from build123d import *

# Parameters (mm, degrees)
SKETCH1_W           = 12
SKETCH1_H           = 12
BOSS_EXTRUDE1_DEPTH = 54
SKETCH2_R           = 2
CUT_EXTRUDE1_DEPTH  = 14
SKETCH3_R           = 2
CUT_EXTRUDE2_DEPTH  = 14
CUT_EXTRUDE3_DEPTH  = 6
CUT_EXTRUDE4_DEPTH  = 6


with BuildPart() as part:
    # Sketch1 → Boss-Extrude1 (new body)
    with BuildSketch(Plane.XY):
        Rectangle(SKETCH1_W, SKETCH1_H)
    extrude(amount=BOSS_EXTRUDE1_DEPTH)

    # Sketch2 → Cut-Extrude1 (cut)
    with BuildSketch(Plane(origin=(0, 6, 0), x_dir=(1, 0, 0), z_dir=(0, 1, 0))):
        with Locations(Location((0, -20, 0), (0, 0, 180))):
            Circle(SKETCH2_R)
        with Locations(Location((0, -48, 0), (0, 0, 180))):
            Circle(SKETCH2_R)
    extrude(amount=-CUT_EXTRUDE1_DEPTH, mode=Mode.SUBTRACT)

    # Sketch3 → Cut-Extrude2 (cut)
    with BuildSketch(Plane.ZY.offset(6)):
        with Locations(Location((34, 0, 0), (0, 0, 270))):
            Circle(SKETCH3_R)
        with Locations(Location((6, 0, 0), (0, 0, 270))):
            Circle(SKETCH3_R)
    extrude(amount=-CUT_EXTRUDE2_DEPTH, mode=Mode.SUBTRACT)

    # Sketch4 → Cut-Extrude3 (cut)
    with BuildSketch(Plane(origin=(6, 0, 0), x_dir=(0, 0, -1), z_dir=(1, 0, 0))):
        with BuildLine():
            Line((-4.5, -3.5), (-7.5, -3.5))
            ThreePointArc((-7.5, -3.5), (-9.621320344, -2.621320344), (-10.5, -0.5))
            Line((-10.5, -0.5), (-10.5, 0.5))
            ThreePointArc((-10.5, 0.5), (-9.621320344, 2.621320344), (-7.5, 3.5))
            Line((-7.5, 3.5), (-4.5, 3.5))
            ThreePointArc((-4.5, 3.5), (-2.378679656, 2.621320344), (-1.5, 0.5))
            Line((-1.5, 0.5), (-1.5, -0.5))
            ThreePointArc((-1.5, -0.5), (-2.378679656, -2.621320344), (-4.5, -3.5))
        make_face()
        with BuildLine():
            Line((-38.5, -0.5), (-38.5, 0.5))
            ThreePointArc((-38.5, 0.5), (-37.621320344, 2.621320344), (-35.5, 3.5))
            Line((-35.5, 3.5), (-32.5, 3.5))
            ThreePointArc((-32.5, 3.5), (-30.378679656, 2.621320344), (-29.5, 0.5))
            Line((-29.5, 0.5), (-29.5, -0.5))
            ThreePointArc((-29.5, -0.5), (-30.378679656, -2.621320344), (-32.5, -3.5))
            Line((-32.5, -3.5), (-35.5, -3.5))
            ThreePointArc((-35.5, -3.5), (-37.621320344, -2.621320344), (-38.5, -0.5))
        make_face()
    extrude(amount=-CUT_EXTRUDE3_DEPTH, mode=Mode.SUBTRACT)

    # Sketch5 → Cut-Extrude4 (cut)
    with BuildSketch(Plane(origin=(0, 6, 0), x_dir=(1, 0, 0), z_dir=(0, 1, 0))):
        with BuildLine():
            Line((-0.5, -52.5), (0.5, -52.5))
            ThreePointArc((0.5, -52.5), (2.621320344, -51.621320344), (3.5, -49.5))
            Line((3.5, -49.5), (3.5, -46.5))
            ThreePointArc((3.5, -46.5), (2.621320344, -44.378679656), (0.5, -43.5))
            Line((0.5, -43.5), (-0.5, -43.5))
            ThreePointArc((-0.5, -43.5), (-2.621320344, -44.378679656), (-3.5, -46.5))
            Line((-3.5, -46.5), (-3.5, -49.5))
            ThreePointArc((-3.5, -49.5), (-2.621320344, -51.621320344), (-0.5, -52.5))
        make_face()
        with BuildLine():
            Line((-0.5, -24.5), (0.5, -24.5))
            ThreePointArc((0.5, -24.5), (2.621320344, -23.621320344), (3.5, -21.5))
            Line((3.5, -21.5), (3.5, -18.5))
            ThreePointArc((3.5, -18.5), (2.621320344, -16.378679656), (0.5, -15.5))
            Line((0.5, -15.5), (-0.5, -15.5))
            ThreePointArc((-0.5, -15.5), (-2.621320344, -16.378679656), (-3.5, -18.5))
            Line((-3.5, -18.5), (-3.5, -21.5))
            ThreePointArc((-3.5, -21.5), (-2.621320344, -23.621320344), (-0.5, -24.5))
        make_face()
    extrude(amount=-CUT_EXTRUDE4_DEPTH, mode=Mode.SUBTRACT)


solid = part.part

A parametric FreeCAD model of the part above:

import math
import FreeCAD as App
import Part
import Sketcher

V = App.Vector

doc = App.newDocument("Part")
body = doc.addObject("PartDesign::Body", "Body")

# Sketch on XY plane
sketch1 = doc.addObject("Sketcher::SketchObject", "Sketch")
body.addObject(sketch1)
sketch1.AttachmentSupport = (doc.XY_Plane, [""])
sketch1.MapMode = "FlatFace"
sketch1.addGeometry([
    Part.LineSegment(V(-6, 6, 0), V(-6, -6, 0)),
    Part.LineSegment(V(-6, -6, 0), V(6, -6, 0)),
    Part.LineSegment(V(6, -6, 0), V(6, 6, 0)),
    Part.LineSegment(V(6, 6, 0), V(-6, 6, 0)),
], False)
sketch1.addConstraint([
    Sketcher.Constraint("Coincident", 0, 2, 1, 1),
    Sketcher.Constraint("Coincident", 1, 2, 2, 1),
    Sketcher.Constraint("Coincident", 2, 2, 3, 1),
    Sketcher.Constraint("Coincident", 3, 2, 0, 1),
    Sketcher.Constraint("Vertical", 0),
    Sketcher.Constraint("Horizontal", 1),
    Sketcher.Constraint("Vertical", 2),
    Sketcher.Constraint("Horizontal", 3),
    Sketcher.Constraint("Symmetric", 0, 2, 2, 2, -1, 1),
    Sketcher.Constraint("Equal", 3, 0),
    Sketcher.Constraint("DistanceX", 1, 1, 1, 2, 12.0),
])
pad1 = doc.addObject("PartDesign::Pad", "Pad")
body.addObject(pad1)
pad1.Profile = sketch1
pad1.Length = 54

# Sketch on XZ plane
sketch2 = doc.addObject("Sketcher::SketchObject", "Sketch001")
body.addObject(sketch2)
sketch2.AttachmentSupport = (doc.XZ_Plane, [""])
sketch2.MapMode = "FlatFace"
sketch2.AttachmentOffset = App.Placement(V(0, 0, -6), App.Rotation())
sketch2.addGeometry([
    Part.Circle(V(0, 20, 0), V(0, 0, 1), 2),
    Part.Circle(V(0, 48, 0), V(0, 0, 1), 2),
], False)
sketch2.addConstraint([
    Sketcher.Constraint("Equal", 0, 1),
    Sketcher.Constraint("PointOnObject", 0, 3, -2),
    Sketcher.Constraint("PointOnObject", 1, 3, -2),
    Sketcher.Constraint("Diameter", 0, 4.0),
    Sketcher.Constraint("DistanceY", -1, 1, 0, 3, 20.0),
    Sketcher.Constraint("DistanceY", -1, 1, 1, 3, 48.0),
])
pocket1 = doc.addObject("PartDesign::Pocket", "Pocket")
body.addObject(pocket1)
pocket1.Profile = sketch2
pocket1.Length = 14
pocket1.Reversed = True

# Sketch on YZ plane
sketch3 = doc.addObject("Sketcher::SketchObject", "Sketch002")
body.addObject(sketch3)
sketch3.AttachmentSupport = (doc.YZ_Plane, [""])
sketch3.MapMode = "FlatFace"
sketch3.AttachmentOffset = App.Placement(V(0, 0, -6), App.Rotation())
sketch3.addGeometry([
    Part.Circle(V(0, 34, 0), V(0, 0, 1), 2),
    Part.Circle(V(0, 6, 0), V(0, 0, 1), 2),
], False)
sketch3.addConstraint([
    Sketcher.Constraint("Equal", 0, 1),
    Sketcher.Constraint("PointOnObject", 0, 3, -2),
    Sketcher.Constraint("PointOnObject", 1, 3, -2),
    Sketcher.Constraint("Diameter", 0, 4.0),
    Sketcher.Constraint("DistanceY", -1, 1, 0, 3, 34.0),
    Sketcher.Constraint("DistanceY", -1, 1, 1, 3, 6.0),
])
pocket2 = doc.addObject("PartDesign::Pocket", "Pocket001")
body.addObject(pocket2)
pocket2.Profile = sketch3
pocket2.Length = 14
pocket2.Reversed = True

# Sketch on YZ plane
sketch4 = doc.addObject("Sketcher::SketchObject", "Sketch003")
body.addObject(sketch4)
sketch4.AttachmentSupport = (doc.YZ_Plane, [""])
sketch4.MapMode = "FlatFace"
sketch4.AttachmentOffset = App.Placement(V(0, 0, 6), App.Rotation())
sketch4.addGeometry([
    Part.LineSegment(V(-3.5, 7.5, 0), V(-3.5, 4.5, 0)),  # 0
    Part.ArcOfCircle(Part.Circle(V(-0.5, 4.5, 0), V(0, 0, 1), 3), math.radians(180), math.radians(270)),  # 1
    Part.LineSegment(V(-0.5, 1.5, 0), V(0.5, 1.5, 0)),  # 2
    Part.ArcOfCircle(Part.Circle(V(0.5, 4.5, 0), V(0, 0, 1), 3), math.radians(-90), math.radians(0)),  # 3
    Part.LineSegment(V(3.5, 4.5, 0), V(3.5, 7.5, 0)),  # 4
    Part.ArcOfCircle(Part.Circle(V(0.5, 7.5, 0), V(0, 0, 1), 3), math.radians(0), math.radians(90)),  # 5
    Part.LineSegment(V(0.5, 10.5, 0), V(-0.5, 10.5, 0)),  # 6
    Part.ArcOfCircle(Part.Circle(V(-0.5, 7.5, 0), V(0, 0, 1), 3), math.radians(90), math.radians(180)),  # 7
    Part.LineSegment(V(0.5, 38.5, 0), V(-0.5, 38.5, 0)),  # 8
    Part.ArcOfCircle(Part.Circle(V(-0.5, 35.5, 0), V(0, 0, 1), 3), math.radians(90), math.radians(180)),  # 9
    Part.LineSegment(V(-3.5, 35.5, 0), V(-3.5, 32.5, 0)),  # 10
    Part.ArcOfCircle(Part.Circle(V(-0.5, 32.5, 0), V(0, 0, 1), 3), math.radians(180), math.radians(270)),  # 11
    Part.LineSegment(V(-0.5, 29.5, 0), V(0.5, 29.5, 0)),  # 12
    Part.ArcOfCircle(Part.Circle(V(0.5, 32.5, 0), V(0, 0, 1), 3), math.radians(-90), math.radians(0)),  # 13
    Part.LineSegment(V(3.5, 32.5, 0), V(3.5, 35.5, 0)),  # 14
    Part.ArcOfCircle(Part.Circle(V(0.5, 35.5, 0), V(0, 0, 1), 3), math.radians(0), math.radians(90)),  # 15
], False)
sketch4.addConstraint([
    Sketcher.Constraint("Tangent", 0, 2, 1, 1),
    Sketcher.Constraint("Tangent", 1, 2, 2, 1),
    Sketcher.Constraint("Tangent", 2, 2, 3, 1),
    Sketcher.Constraint("Tangent", 3, 2, 4, 1),
    Sketcher.Constraint("Tangent", 4, 2, 5, 1),
    Sketcher.Constraint("Tangent", 5, 2, 6, 1),
    Sketcher.Constraint("Tangent", 6, 2, 7, 1),
    Sketcher.Constraint("Tangent", 7, 2, 0, 1),
    Sketcher.Constraint("Tangent", 8, 2, 9, 1),
    Sketcher.Constraint("Tangent", 9, 2, 10, 1),
    Sketcher.Constraint("Tangent", 10, 2, 11, 1),
    Sketcher.Constraint("Tangent", 11, 2, 12, 1),
    Sketcher.Constraint("Tangent", 12, 2, 13, 1),
    Sketcher.Constraint("Tangent", 13, 2, 14, 1),
    Sketcher.Constraint("Tangent", 14, 2, 15, 1),
    Sketcher.Constraint("Tangent", 15, 2, 8, 1),
    Sketcher.Constraint("Vertical", 0),
    Sketcher.Constraint("Horizontal", 2),
    Sketcher.Constraint("Vertical", 4),
    Sketcher.Constraint("Horizontal", 6),
    Sketcher.Constraint("Horizontal", 8),
    Sketcher.Constraint("Vertical", 10),
    Sketcher.Constraint("Horizontal", 12),
    Sketcher.Constraint("Vertical", 14),
    Sketcher.Constraint("Equal", 1, 3),
    Sketcher.Constraint("Equal", 3, 5),
    Sketcher.Constraint("Equal", 5, 7),
    Sketcher.Constraint("Equal", 7, 9),
    Sketcher.Constraint("Equal", 9, 11),
    Sketcher.Constraint("Equal", 11, 13),
    Sketcher.Constraint("Equal", 13, 15),
    Sketcher.Constraint("Vertical", 7, 3, 9, 3),
    Sketcher.Constraint("Vertical", 5, 3, 13, 3),
    Sketcher.Constraint("Equal", 4, 10),
    Sketcher.Constraint("Radius", 1, 3.0),
    Sketcher.Constraint("DistanceX", 2, 1, 2, 2, 1.0),
    Sketcher.Constraint("DistanceY", 0, 2, 0, 1, 3.0),
    Sketcher.Constraint("DistanceY", 7, 3, 9, 3, 28.0),
    Sketcher.Constraint("DistanceX", 1, 3, -1, 1, 0.5),
    Sketcher.Constraint("DistanceY", -1, 1, 1, 3, 4.5),
])
pocket3 = doc.addObject("PartDesign::Pocket", "Pocket002")
body.addObject(pocket3)
pocket3.Profile = sketch4
pocket3.Length = 6

# Sketch on XZ plane
sketch5 = doc.addObject("Sketcher::SketchObject", "Sketch004")
body.addObject(sketch5)
sketch5.AttachmentSupport = (doc.XZ_Plane, [""])
sketch5.MapMode = "FlatFace"
sketch5.AttachmentOffset = App.Placement(V(0, 0, -6), App.Rotation())
sketch5.addGeometry([
    Part.LineSegment(V(-0.5, 52.5, 0), V(0.5, 52.5, 0)),  # 0
    Part.ArcOfCircle(Part.Circle(V(0.5, 49.5, 0), V(0, 0, 1), 3), math.radians(0), math.radians(90)),  # 1
    Part.LineSegment(V(3.5, 49.5, 0), V(3.5, 46.5, 0)),  # 2
    Part.ArcOfCircle(Part.Circle(V(0.5, 46.5, 0), V(0, 0, 1), 3), math.radians(-90), math.radians(0)),  # 3
    Part.LineSegment(V(0.5, 43.5, 0), V(-0.5, 43.5, 0)),  # 4
    Part.ArcOfCircle(Part.Circle(V(-0.5, 46.5, 0), V(0, 0, 1), 3), math.radians(180), math.radians(270)),  # 5
    Part.LineSegment(V(-3.5, 46.5, 0), V(-3.5, 49.5, 0)),  # 6
    Part.ArcOfCircle(Part.Circle(V(-0.5, 49.5, 0), V(0, 0, 1), 3), math.radians(90), math.radians(180)),  # 7
    Part.LineSegment(V(-0.5, 24.5, 0), V(0.5, 24.5, 0)),  # 8
    Part.ArcOfCircle(Part.Circle(V(0.5, 21.5, 0), V(0, 0, 1), 3), math.radians(0), math.radians(90)),  # 9
    Part.LineSegment(V(3.5, 21.5, 0), V(3.5, 18.5, 0)),  # 10
    Part.ArcOfCircle(Part.Circle(V(0.5, 18.5, 0), V(0, 0, 1), 3), math.radians(-90), math.radians(0)),  # 11
    Part.LineSegment(V(0.5, 15.5, 0), V(-0.5, 15.5, 0)),  # 12
    Part.ArcOfCircle(Part.Circle(V(-0.5, 18.5, 0), V(0, 0, 1), 3), math.radians(180), math.radians(270)),  # 13
    Part.LineSegment(V(-3.5, 18.5, 0), V(-3.5, 21.5, 0)),  # 14
    Part.ArcOfCircle(Part.Circle(V(-0.5, 21.5, 0), V(0, 0, 1), 3), math.radians(90), math.radians(180)),  # 15
], False)
sketch5.addConstraint([
    Sketcher.Constraint("Tangent", 0, 2, 1, 2),
    Sketcher.Constraint("Tangent", 1, 1, 2, 1),
    Sketcher.Constraint("Tangent", 2, 2, 3, 2),
    Sketcher.Constraint("Tangent", 3, 1, 4, 1),
    Sketcher.Constraint("Tangent", 4, 2, 5, 2),
    Sketcher.Constraint("Tangent", 5, 1, 6, 1),
    Sketcher.Constraint("Tangent", 6, 2, 7, 2),
    Sketcher.Constraint("Tangent", 7, 1, 0, 1),
    Sketcher.Constraint("Tangent", 8, 2, 9, 2),
    Sketcher.Constraint("Tangent", 9, 1, 10, 1),
    Sketcher.Constraint("Tangent", 10, 2, 11, 2),
    Sketcher.Constraint("Tangent", 11, 1, 12, 1),
    Sketcher.Constraint("Tangent", 12, 2, 13, 2),
    Sketcher.Constraint("Tangent", 13, 1, 14, 1),
    Sketcher.Constraint("Tangent", 14, 2, 15, 2),
    Sketcher.Constraint("Tangent", 15, 1, 8, 1),
    Sketcher.Constraint("Horizontal", 0),
    Sketcher.Constraint("Vertical", 2),
    Sketcher.Constraint("Horizontal", 4),
    Sketcher.Constraint("Vertical", 6),
    Sketcher.Constraint("Horizontal", 8),
    Sketcher.Constraint("Vertical", 10),
    Sketcher.Constraint("Horizontal", 12),
    Sketcher.Constraint("Vertical", 14),
    Sketcher.Constraint("Equal", 1, 3),
    Sketcher.Constraint("Equal", 3, 5),
    Sketcher.Constraint("Equal", 5, 7),
    Sketcher.Constraint("Equal", 7, 9),
    Sketcher.Constraint("Equal", 9, 11),
    Sketcher.Constraint("Equal", 11, 13),
    Sketcher.Constraint("Equal", 13, 15),
    Sketcher.Constraint("Vertical", 3, 3, 9, 3),
    Sketcher.Constraint("Vertical", 7, 3, 13, 3),
    Sketcher.Constraint("Equal", 6, 10),
    Sketcher.Constraint("Radius", 1, 3.0),
    Sketcher.Constraint("DistanceX", 0, 1, 0, 2, 1.0),
    Sketcher.Constraint("DistanceY", 2, 2, 2, 1, 3.0),
    Sketcher.Constraint("DistanceY", 9, 3, 3, 3, 25.0),
    Sketcher.Constraint("DistanceX", -1, 1, 1, 3, 0.5),
    Sketcher.Constraint("DistanceY", -1, 1, 1, 3, 49.5),
])
pocket4 = doc.addObject("PartDesign::Pocket", "Pocket003")
body.addObject(pocket4)
pocket4.Profile = sketch5
pocket4.Length = 6
pocket4.Reversed = True

doc.recompute()
